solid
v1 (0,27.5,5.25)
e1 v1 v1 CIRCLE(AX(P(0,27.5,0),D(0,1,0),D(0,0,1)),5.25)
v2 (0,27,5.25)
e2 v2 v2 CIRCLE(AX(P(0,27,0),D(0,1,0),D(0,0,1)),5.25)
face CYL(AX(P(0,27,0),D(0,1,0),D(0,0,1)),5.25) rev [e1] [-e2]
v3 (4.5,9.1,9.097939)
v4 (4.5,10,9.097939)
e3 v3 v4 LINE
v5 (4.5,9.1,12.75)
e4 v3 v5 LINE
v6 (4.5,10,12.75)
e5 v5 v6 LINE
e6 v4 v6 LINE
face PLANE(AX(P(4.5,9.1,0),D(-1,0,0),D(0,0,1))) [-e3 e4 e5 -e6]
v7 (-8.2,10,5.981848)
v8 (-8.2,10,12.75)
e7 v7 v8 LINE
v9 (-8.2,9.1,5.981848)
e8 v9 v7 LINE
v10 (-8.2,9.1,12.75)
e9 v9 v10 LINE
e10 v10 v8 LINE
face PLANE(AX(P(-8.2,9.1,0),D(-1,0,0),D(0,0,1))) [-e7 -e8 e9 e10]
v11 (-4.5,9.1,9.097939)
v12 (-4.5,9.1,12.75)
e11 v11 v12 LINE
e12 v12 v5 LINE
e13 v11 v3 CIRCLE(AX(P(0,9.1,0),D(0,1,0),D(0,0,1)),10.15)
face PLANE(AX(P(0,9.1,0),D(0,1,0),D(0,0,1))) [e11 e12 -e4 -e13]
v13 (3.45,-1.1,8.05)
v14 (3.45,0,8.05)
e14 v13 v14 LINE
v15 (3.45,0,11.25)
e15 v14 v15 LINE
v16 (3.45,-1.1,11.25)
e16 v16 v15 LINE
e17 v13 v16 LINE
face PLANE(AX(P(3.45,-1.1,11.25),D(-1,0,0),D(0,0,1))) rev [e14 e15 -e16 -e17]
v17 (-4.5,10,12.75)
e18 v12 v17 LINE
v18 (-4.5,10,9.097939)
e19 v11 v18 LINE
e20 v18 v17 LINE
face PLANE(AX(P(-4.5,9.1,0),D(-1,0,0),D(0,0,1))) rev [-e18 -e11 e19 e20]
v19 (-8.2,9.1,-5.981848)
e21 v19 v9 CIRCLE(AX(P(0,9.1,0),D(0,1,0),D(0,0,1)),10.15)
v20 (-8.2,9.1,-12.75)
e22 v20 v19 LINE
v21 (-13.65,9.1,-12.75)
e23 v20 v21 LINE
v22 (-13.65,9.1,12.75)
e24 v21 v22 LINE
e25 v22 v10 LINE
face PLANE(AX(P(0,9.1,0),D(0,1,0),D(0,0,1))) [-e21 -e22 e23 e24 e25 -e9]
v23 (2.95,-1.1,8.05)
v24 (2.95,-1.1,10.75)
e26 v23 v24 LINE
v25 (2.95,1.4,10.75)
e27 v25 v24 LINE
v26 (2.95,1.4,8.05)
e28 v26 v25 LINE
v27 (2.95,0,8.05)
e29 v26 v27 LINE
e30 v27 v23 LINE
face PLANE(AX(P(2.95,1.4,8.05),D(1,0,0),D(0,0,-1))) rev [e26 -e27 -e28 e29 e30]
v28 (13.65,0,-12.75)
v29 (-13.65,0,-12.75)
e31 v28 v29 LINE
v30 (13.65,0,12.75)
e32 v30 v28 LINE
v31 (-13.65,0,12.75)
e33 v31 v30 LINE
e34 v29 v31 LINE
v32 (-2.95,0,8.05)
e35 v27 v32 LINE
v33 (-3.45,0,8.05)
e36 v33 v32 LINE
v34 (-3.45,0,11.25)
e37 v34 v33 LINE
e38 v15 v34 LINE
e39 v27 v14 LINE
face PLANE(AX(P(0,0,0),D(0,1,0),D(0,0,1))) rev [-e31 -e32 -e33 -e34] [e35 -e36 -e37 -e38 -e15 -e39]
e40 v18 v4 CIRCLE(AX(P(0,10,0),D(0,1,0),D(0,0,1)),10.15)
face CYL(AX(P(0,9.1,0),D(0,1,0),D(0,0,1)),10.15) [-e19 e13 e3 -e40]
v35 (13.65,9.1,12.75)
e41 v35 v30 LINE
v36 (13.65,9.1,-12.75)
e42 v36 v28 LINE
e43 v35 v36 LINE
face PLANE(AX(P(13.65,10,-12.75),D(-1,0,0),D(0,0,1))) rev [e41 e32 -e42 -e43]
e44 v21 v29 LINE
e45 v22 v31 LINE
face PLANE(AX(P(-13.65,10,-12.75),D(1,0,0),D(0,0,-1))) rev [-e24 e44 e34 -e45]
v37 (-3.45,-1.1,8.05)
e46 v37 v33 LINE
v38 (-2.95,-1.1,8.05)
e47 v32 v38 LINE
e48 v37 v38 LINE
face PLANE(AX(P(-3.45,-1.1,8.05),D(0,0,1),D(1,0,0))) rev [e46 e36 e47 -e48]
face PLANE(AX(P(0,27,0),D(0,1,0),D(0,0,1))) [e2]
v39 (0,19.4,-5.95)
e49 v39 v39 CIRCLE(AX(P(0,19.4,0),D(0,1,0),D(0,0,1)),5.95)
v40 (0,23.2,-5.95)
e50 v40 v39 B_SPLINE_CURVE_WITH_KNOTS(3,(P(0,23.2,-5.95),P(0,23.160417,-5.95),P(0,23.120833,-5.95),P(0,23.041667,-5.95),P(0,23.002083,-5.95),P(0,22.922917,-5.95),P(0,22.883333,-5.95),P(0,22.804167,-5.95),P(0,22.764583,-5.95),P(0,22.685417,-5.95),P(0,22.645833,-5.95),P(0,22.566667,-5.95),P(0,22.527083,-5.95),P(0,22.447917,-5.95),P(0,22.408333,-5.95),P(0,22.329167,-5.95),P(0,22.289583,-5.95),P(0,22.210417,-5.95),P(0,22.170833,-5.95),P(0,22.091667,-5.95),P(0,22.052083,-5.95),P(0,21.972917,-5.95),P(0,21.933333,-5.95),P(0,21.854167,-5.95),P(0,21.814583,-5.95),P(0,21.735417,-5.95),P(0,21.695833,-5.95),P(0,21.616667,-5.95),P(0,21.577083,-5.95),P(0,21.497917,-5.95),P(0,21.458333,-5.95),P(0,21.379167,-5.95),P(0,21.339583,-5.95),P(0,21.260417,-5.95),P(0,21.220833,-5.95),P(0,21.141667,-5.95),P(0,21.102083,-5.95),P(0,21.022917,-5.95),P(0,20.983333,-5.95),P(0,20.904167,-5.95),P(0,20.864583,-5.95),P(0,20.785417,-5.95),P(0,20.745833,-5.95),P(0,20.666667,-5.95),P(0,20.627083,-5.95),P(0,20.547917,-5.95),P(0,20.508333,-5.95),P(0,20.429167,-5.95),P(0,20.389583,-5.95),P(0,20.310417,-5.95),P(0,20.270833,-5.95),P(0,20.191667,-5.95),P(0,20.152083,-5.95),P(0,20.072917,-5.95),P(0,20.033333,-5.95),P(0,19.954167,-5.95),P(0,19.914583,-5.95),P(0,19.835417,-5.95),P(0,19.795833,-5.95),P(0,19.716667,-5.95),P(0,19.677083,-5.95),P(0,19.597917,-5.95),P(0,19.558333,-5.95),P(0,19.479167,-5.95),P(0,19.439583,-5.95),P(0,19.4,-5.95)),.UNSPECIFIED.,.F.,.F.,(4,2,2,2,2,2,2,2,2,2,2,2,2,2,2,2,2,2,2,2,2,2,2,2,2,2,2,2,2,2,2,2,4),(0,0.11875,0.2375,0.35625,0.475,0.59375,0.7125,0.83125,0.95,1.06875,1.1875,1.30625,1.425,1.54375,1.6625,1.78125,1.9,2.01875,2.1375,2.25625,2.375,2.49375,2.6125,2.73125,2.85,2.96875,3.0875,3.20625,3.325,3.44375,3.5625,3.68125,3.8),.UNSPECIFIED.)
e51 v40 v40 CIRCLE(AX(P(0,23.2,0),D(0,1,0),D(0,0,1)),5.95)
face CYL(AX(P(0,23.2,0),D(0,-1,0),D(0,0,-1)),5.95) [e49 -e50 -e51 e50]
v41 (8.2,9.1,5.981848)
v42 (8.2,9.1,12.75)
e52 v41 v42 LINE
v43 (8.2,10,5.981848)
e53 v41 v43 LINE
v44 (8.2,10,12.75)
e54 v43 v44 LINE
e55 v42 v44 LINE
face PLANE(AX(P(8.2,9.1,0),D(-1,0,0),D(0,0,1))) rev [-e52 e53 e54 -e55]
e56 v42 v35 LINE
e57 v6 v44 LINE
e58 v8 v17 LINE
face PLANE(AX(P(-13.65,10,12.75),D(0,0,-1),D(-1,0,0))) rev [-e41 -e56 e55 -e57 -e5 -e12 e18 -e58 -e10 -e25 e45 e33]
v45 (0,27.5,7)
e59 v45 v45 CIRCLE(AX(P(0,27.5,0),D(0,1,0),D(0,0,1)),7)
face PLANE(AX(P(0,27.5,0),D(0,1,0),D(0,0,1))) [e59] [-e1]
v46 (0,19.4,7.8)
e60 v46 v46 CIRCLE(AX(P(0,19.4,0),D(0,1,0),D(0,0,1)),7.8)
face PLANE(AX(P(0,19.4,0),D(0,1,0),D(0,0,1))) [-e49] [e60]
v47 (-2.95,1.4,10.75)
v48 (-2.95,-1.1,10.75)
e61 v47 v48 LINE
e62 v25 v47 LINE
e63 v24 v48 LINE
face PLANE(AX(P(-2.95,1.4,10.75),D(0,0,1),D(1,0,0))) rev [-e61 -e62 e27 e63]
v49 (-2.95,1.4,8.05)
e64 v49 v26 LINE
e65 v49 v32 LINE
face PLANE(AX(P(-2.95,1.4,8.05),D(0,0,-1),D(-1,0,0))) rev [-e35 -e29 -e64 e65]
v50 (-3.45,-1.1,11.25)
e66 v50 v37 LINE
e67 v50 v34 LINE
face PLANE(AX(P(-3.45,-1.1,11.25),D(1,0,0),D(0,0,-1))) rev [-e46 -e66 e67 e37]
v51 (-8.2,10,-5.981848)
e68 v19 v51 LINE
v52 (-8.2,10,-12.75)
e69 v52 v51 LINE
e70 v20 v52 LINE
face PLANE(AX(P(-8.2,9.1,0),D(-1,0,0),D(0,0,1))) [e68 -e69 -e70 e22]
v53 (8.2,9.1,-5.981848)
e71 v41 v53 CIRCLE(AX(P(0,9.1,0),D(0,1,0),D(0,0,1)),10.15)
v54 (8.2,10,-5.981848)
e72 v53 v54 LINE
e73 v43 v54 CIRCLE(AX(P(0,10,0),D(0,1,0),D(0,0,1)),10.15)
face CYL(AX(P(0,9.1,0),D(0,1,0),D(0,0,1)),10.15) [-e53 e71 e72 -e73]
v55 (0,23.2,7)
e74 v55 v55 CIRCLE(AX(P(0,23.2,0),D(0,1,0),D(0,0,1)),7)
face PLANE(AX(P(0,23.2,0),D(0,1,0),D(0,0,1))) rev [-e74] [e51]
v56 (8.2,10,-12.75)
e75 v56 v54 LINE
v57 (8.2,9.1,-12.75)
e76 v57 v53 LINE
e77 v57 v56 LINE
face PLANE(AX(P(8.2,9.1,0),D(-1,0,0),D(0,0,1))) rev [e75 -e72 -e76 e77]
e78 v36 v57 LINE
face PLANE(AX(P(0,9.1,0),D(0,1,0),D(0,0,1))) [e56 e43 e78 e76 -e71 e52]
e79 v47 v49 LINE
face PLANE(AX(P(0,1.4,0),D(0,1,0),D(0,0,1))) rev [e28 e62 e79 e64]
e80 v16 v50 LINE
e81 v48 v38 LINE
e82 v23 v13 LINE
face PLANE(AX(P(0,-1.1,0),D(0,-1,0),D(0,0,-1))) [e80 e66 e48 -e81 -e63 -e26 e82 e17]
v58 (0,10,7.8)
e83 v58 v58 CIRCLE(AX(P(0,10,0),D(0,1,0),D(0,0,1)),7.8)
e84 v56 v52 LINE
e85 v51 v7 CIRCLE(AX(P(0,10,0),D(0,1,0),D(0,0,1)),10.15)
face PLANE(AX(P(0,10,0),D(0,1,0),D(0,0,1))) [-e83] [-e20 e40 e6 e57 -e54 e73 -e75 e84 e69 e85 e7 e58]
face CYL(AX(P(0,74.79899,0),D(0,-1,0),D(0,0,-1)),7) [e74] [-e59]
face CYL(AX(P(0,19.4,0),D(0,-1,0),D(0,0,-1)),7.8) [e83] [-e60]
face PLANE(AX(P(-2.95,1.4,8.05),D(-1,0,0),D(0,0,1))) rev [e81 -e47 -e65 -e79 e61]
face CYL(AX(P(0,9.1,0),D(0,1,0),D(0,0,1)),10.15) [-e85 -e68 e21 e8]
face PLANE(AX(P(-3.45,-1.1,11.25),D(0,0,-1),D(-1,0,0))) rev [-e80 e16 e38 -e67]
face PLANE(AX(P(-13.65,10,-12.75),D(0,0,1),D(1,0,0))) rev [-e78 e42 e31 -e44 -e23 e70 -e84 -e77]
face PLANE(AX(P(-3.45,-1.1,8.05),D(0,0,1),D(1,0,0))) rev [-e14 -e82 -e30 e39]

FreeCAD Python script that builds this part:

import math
import FreeCAD as App
import Part
import Sketcher
Q = App.Units.Quantity

doc = App.newDocument("Part")
params = doc.addObject("Spreadsheet::Sheet", "Params")
for row, (alias, value) in enumerate([
    ("sketch1_width", "27.3 mm"),
    ("sketch1_height", "25.5 mm"),
    ("pad1_length", "10 mm"),
    ("sketch2_width", "9 mm"),
    ("sketch2_radius", "10.15 mm"),
    ("sketch2_height", "25.5 mm"),
    ("sketch2_width2", "5.45 mm"),
    ("pocket1_length", "0.9 mm"),
    ("sketch3_diameter", "15.6 mm"),
    ("pad2_length", "9.4 mm"),
    ("sketch4_diameter", "11.9 mm"),
    ("pad3_length", "3.8 mm"),
    ("sketch5_diameter", "14 mm"),
    ("pad4_length", "4.3 mm"),
    ("sketch6_diameter", "10.5 mm"),
    ("pocket2_length", "0.5 mm"),
    ("sketch7_width", "6.9 mm"),
    ("sketch7_height", "3.2 mm"),
    ("pad5_length", "1.1 mm"),
    ("sketch8_width", "5.9 mm"),
    ("sketch8_height", "2.7 mm"),
    ("pocket3_length", "2.5 mm"),
], start=1):
    params.set(f"A{row}", alias)
    params.set(f"B{row}", "=" + value)
    params.setAlias(f"B{row}", alias)

body = doc.addObject("PartDesign::Body", "Body")

sketch1 = body.newObject("Sketcher::SketchObject", "Sketch")
sketch1.AttachmentSupport = (doc.getObject("XZ_Plane"), [""])
sketch1.MapMode = "FlatFace"
sketch1.addGeometry([
    Part.LineSegment(App.Vector(-14, -13, 0), App.Vector(-14, 13, 0)),
    Part.LineSegment(App.Vector(-14, 13, 0), App.Vector(14, 13, 0)),
    Part.LineSegment(App.Vector(14, 13, 0), App.Vector(14, -13, 0)),
    Part.LineSegment(App.Vector(14, -13, 0), App.Vector(-14, -13, 0)),
], False)
sketch1.addConstraint([
    Sketcher.Constraint("Coincident", 0, 2, 1, 1),
    Sketcher.Constraint("Coincident", 1, 2, 2, 1),
    Sketcher.Constraint("Coincident", 2, 2, 3, 1),
    Sketcher.Constraint("Coincident", 3, 2, 0, 1),
    Sketcher.Constraint("Vertical", 0),
    Sketcher.Constraint("Horizontal", 1),
    Sketcher.Constraint("Vertical", 2),
    Sketcher.Constraint("Horizontal", 3),
    Sketcher.Constraint("Symmetric", 0, 2, 2, 2, -1, 1),
    Sketcher.Constraint("DistanceX", 1, 1, 1, 2, Q("27.3 mm")),
    Sketcher.Constraint("DistanceY", 0, 1, 0, 2, Q("25.5 mm")),
])
sketch1.setExpression("Constraints[9]", "Params.sketch1_width")
sketch1.setExpression("Constraints[10]", "Params.sketch1_height")
pad1 = body.newObject("PartDesign::Pad", "Pad")
pad1.Profile = sketch1
pad1.setExpression("Length", "Params.pad1_length")
pad1.Reversed = True

sketch2 = body.newObject("Sketcher::SketchObject", "Sketch001")
sketch2.AttachmentSupport = (doc.getObject("XZ_Plane"), [""])
sketch2.MapMode = "FlatFace"
sketch2.AttachmentOffset = App.Placement(App.Vector(0, 0, -10), App.Rotation())
sketch2.addGeometry([
    Part.LineSegment(App.Vector(-8.2, -6, 0), App.Vector(-8.2, -12.8, 0)),
    Part.LineSegment(App.Vector(-8.2, -12.8, 0), App.Vector(-13.7, -12.8, 0)),
    Part.LineSegment(App.Vector(-13.7, -12.8, 0), App.Vector(-13.7, 12.8, 0)),
    Part.LineSegment(App.Vector(-13.7, 12.8, 0), App.Vector(-8.2, 12.8, 0)),
    Part.LineSegment(App.Vector(-8.2, 12.8, 0), App.Vector(-8.2, 6, 0)),
    Part.ArcOfCircle(Part.Circle(App.Vector(0, 0, 0), App.Vector(0, 0, 1), 10.2), math.radians(144), math.radians(216)),
    Part.LineSegment(App.Vector(13.7, -12.8, 0), App.Vector(8.2, -12.8, 0)),
    Part.LineSegment(App.Vector(8.2, -12.8, 0), App.Vector(8.2, -6, 0)),
    Part.ArcOfCircle(Part.Circle(App.Vector(0, 0, 0), App.Vector(0, 0, 1), 10.1), math.radians(-36), math.radians(0)),
    Part.ArcOfCircle(Part.Circle(App.Vector(0, 0, 0), App.Vector(0, 0, 1), 10.1), math.radians(0), math.radians(36)),
    Part.LineSegment(App.Vector(8.2, 6, 0), App.Vector(8.2, 12.8, 0)),
    Part.LineSegment(App.Vector(8.2, 12.8, 0), App.Vector(13.7, 12.8, 0)),
    Part.LineSegment(App.Vector(13.7, 12.8, 0), App.Vector(13.7, -12.8, 0)),
    Part.ArcOfCircle(Part.Circle(App.Vector(0, 0, 0), App.Vector(0, 0, 1), 10.1), math.radians(90), math.radians(116)),
    Part.LineSegment(App.Vector(-4.5, 9.1, 0), App.Vector(-4.5, 12.8, 0)),
    Part.LineSegment(App.Vector(-4.5, 12.8, 0), App.Vector(4.5, 12.8, 0)),
    Part.LineSegment(App.Vector(4.5, 12.8, 0), App.Vector(4.5, 9.1, 0)),
    Part.ArcOfCircle(Part.Circle(App.Vector(0, 0, 0), App.Vector(0, 0, 1), 10.1), math.radians(64), math.radians(90)),
], False)
sketch2.addConstraint([
    Sketcher.Constraint("Coincident", 0, 2, 1, 1),
    Sketcher.Constraint("Coincident", 1, 2, 2, 1),
    Sketcher.Constraint("Coincident", 2, 2, 3, 1),
    Sketcher.Constraint("Coincident", 3, 2, 4, 1),
    Sketcher.Constraint("Coincident", 4, 2, 5, 1),
    Sketcher.Constraint("Coincident", 5, 2, 0, 1),
    Sketcher.Constraint("Coincident", 6, 2, 7, 1),
    Sketcher.Constraint("Coincident", 7, 2, 8, 1),
    Sketcher.Constraint("Tangent", 8, 2, 9, 1),
    Sketcher.Constraint("Coincident", 9, 2, 10, 1),
    Sketcher.Constraint("Coincident", 10, 2, 11, 1),
    Sketcher.Constraint("Coincident", 11, 2, 12, 1),
    Sketcher.Constraint("Coincident", 12, 2, 6, 1),
    Sketcher.Constraint("Coincident", 13, 2, 14, 1),
    Sketcher.Constraint("Coincident", 14, 2, 15, 1),
    Sketcher.Constraint("Coincident", 15, 2, 16, 1),
    Sketcher.Constraint("Coincident", 16, 2, 17, 1),
    Sketcher.Constraint("Tangent", 17, 2, 13, 1),
    Sketcher.Constraint("Vertical", 0),
    Sketcher.Constraint("Horizontal", 1),
    Sketcher.Constraint("Vertical", 2),
    Sketcher.Constraint("Horizontal", 3),
    Sketcher.Constraint("Vertical", 4),
    Sketcher.Constraint("Horizontal", 6),
    Sketcher.Constraint("Vertical", 7),
    Sketcher.Constraint("Vertical", 10),
    Sketcher.Constraint("Horizontal", 11),
    Sketcher.Constraint("Vertical", 12),
    Sketcher.Constraint("Vertical", 14),
    Sketcher.Constraint("Horizontal", 15),
    Sketcher.Constraint("Vertical", 16),
    Sketcher.Constraint("Coincident", 5, 3, -1, 1),
    Sketcher.Constraint("Coincident", 8, 3, -1, 1),
    Sketcher.Constraint("Coincident", 13, 3, -1, 1),
    Sketcher.Constraint("Equal", 5, 8),
    Sketcher.Constraint("Equal", 8, 9),
    Sketcher.Constraint("Equal", 9, 13),
    Sketcher.Constraint("Equal", 13, 17),
    Sketcher.Constraint("Symmetric", 3, 2, 6, 2, -1, 1),
    Sketcher.Constraint("Symmetric", 0, 2, 10, 2, -1, 1),
    Sketcher.Constraint("Symmetric", 0, 2, 6, 2, -2),
    Sketcher.Constraint("PointOnObject", 8, 2, -1),
    Sketcher.Constraint("PointOnObject", 17, 2, -2),
    Sketcher.Constraint("Horizontal", 11, 2, 14, 2),
    Sketcher.Constraint("Horizontal", 13, 2, 16, 2),
    Sketcher.Constraint("Equal", 3, 6),
    Sketcher.Constraint("DistanceX", 15, 1, 15, 2, Q("9 mm")),
    Sketcher.Constraint("Radius", 5, Q("10.15 mm")),
    Sketcher.Constraint("DistanceY", 2, 1, 2, 2, Q("25.5 mm")),
    Sketcher.Constraint("DistanceX", 1, 2, 1, 1, Q("5.45 mm")),
    Sketcher.Constraint("DistanceX", 0, 2, -1, 1, Q("8.2 mm")),
])
sketch2.setExpression("Constraints[46]", "Params.sketch2_width")
sketch2.setExpression("Constraints[47]", "Params.sketch2_radius")
sketch2.setExpression("Constraints[48]", "Params.sketch2_height")
sketch2.setExpression("Constraints[49]", "Params.sketch2_width2")
pocket1 = body.newObject("PartDesign::Pocket", "Pocket")
pocket1.Profile = sketch2
pocket1.setExpression("Length", "Params.pocket1_length")
pocket1.Reversed = True

sketch3 = body.newObject("Sketcher::SketchObject", "Sketch002")
sketch3.AttachmentSupport = (doc.getObject("XZ_Plane"), [""])
sketch3.MapMode = "FlatFace"
sketch3.AttachmentOffset = App.Placement(App.Vector(0, 0, -10), App.Rotation())
sketch3.addGeometry(Part.Circle(App.Vector(0, 0, 0), App.Vector(0, 0, 1), 8), False)
sketch3.addConstraint([
    Sketcher.Constraint("Coincident", 0, 3, -1, 1),
    Sketcher.Constraint("Diameter", 0, Q("15.6 mm")),
])
sketch3.setExpression("Constraints[1]", "Params.sketch3_diameter")
pad2 = body.newObject("PartDesign::Pad", "Pad001")
pad2.Profile = sketch3
pad2.setExpression("Length", "Params.pad2_length")
pad2.Reversed = True

sketch4 = body.newObject("Sketcher::SketchObject", "Sketch003")
sketch4.AttachmentSupport = (doc.getObject("XZ_Plane"), [""])
sketch4.MapMode = "FlatFace"
sketch4.AttachmentOffset = App.Placement(App.Vector(0, 0, -19.4), App.Rotation())
sketch4.addGeometry(Part.Circle(App.Vector(0, 0, 0), App.Vector(0, 0, 1), 6), False)
sketch4.addConstraint([
    Sketcher.Constraint("Coincident", 0, 3, -1, 1),
    Sketcher.Constraint("Diameter", 0, Q("11.9 mm")),
])
sketch4.setExpression("Constraints[1]", "Params.sketch4_diameter")
pad3 = body.newObject("PartDesign::Pad", "Pad002")
pad3.Profile = sketch4
pad3.setExpression("Length", "Params.pad3_length")
pad3.Reversed = True

sketch5 = body.newObject("Sketcher::SketchObject", "Sketch004")
sketch5.AttachmentSupport = (doc.getObject("XZ_Plane"), [""])
sketch5.MapMode = "FlatFace"
sketch5.AttachmentOffset = App.Placement(App.Vector(0, 0, -23.2), App.Rotation())
sketch5.addGeometry(Part.Circle(App.Vector(0, 0, 0), App.Vector(0, 0, 1), 7), False)
sketch5.addConstraint([
    Sketcher.Constraint("Coincident", 0, 3, -1, 1),
    Sketcher.Constraint("Diameter", 0, Q("14 mm")),
])
sketch5.setExpression("Constraints[1]", "Params.sketch5_diameter")
pad4 = body.newObject("PartDesign::Pad", "Pad003")
pad4.Profile = sketch5
pad4.setExpression("Length", "Params.pad4_length")
pad4.Reversed = True

sketch6 = body.newObject("Sketcher::SketchObject", "Sketch005")
sketch6.AttachmentSupport = (doc.getObject("XZ_Plane"), [""])
sketch6.MapMode = "FlatFace"
sketch6.AttachmentOffset = App.Placement(App.Vector(0, 0, -27.5), App.Rotation())
sketch6.addGeometry(Part.Circle(App.Vector(0, 0, 0), App.Vector(0, 0, 1), 5), False)
sketch6.addConstraint([
    Sketcher.Constraint("Coincident", 0, 3, -1, 1),
    Sketcher.Constraint("Diameter", 0, Q("10.5 mm")),
])
sketch6.setExpression("Constraints[1]", "Params.sketch6_diameter")
pocket2 = body.newObject("PartDesign::Pocket", "Pocket001")
pocket2.Profile = sketch6
pocket2.setExpression("Length", "Params.pocket2_length")
pocket2.Reversed = True

sketch7 = body.newObject("Sketcher::SketchObject", "Sketch006")
sketch7.AttachmentSupport = (doc.getObject("XZ_Plane"), [""])
sketch7.MapMode = "FlatFace"
sketch7.addGeometry([
    Part.LineSegment(App.Vector(-3.5, 11.2, 0), App.Vector(-3.5, 8.1, 0)),
    Part.LineSegment(App.Vector(-3.5, 8.1, 0), App.Vector(3.5, 8.1, 0)),
    Part.LineSegment(App.Vector(3.5, 8.1, 0), App.Vector(3.5, 11.2, 0)),
    Part.LineSegment(App.Vector(3.5, 11.2, 0), App.Vector(-3.5, 11.2, 0)),
], False)
sketch7.addConstraint([
    Sketcher.Constraint("Coincident", 0, 2, 1, 1),
    Sketcher.Constraint("Coincident", 1, 2, 2, 1),
    Sketcher.Constraint("Coincident", 2, 2, 3, 1),
    Sketcher.Constraint("Coincident", 3, 2, 0, 1),
    Sketcher.Constraint("Vertical", 0),
    Sketcher.Constraint("Horizontal", 1),
    Sketcher.Constraint("Vertical", 2),
    Sketcher.Constraint("Horizontal", 3),
    Sketcher.Constraint("DistanceX", 1, 1, 1, 2, Q("6.9 mm")),
    Sketcher.Constraint("DistanceY", 0, 2, 0, 1, Q("3.2 mm")),
    Sketcher.Constraint("DistanceX", 0, 2, -1, 1, Q("3.45 mm")),
    Sketcher.Constraint("DistanceY", -1, 1, 0, 2, Q("8.05 mm")),
])
sketch7.setExpression("Constraints[8]", "Params.sketch7_width")
sketch7.setExpression("Constraints[9]", "Params.sketch7_height")
pad5 = body.newObject("PartDesign::Pad", "Pad004")
pad5.Profile = sketch7
pad5.setExpression("Length", "Params.pad5_length")

sketch8 = body.newObject("Sketcher::SketchObject", "Sketch007")
sketch8.AttachmentSupport = (doc.getObject("XZ_Plane"), [""])
sketch8.MapMode = "FlatFace"
sketch8.AttachmentOffset = App.Placement(App.Vector(0, 0, 1.1), App.Rotation())
sketch8.addGeometry([
    Part.LineSegment(App.Vector(-3, 10.8, 0), App.Vector(-3, 8.1, 0)),
    Part.LineSegment(App.Vector(-3, 8.1, 0), App.Vector(3, 8.1, 0)),
    Part.LineSegment(App.Vector(3, 8.1, 0), App.Vector(3, 10.8, 0)),
    Part.LineSegment(App.Vector(3, 10.8, 0), App.Vector(-3, 10.8, 0)),
], False)
sketch8.addConstraint([
    Sketcher.Constraint("Coincident", 0, 2, 1, 1),
    Sketcher.Constraint("Coincident", 1, 2, 2, 1),
    Sketcher.Constraint("Coincident", 2, 2, 3, 1),
    Sketcher.Constraint("Coincident", 3, 2, 0, 1),
    Sketcher.Constraint("Vertical", 0),
    Sketcher.Constraint("Horizontal", 1),
    Sketcher.Constraint("Vertical", 2),
    Sketcher.Constraint("Horizontal", 3),
    Sketcher.Constraint("DistanceX", 1, 1, 1, 2, Q("5.9 mm")),
    Sketcher.Constraint("DistanceY", 0, 2, 0, 1, Q("2.7 mm")),
    Sketcher.Constraint("DistanceX", 0, 2, -1, 1, Q("2.95 mm")),
    Sketcher.Constraint("DistanceY", -1, 1, 0, 2, Q("8.05 mm")),
])
sketch8.setExpression("Constraints[8]", "Params.sketch8_width")
sketch8.setExpression("Constraints[9]", "Params.sketch8_height")
pocket3 = body.newObject("PartDesign::Pocket", "Pocket002")
pocket3.Profile = sketch8
pocket3.setExpression("Length", "Params.pocket3_length")

doc.recompute()
